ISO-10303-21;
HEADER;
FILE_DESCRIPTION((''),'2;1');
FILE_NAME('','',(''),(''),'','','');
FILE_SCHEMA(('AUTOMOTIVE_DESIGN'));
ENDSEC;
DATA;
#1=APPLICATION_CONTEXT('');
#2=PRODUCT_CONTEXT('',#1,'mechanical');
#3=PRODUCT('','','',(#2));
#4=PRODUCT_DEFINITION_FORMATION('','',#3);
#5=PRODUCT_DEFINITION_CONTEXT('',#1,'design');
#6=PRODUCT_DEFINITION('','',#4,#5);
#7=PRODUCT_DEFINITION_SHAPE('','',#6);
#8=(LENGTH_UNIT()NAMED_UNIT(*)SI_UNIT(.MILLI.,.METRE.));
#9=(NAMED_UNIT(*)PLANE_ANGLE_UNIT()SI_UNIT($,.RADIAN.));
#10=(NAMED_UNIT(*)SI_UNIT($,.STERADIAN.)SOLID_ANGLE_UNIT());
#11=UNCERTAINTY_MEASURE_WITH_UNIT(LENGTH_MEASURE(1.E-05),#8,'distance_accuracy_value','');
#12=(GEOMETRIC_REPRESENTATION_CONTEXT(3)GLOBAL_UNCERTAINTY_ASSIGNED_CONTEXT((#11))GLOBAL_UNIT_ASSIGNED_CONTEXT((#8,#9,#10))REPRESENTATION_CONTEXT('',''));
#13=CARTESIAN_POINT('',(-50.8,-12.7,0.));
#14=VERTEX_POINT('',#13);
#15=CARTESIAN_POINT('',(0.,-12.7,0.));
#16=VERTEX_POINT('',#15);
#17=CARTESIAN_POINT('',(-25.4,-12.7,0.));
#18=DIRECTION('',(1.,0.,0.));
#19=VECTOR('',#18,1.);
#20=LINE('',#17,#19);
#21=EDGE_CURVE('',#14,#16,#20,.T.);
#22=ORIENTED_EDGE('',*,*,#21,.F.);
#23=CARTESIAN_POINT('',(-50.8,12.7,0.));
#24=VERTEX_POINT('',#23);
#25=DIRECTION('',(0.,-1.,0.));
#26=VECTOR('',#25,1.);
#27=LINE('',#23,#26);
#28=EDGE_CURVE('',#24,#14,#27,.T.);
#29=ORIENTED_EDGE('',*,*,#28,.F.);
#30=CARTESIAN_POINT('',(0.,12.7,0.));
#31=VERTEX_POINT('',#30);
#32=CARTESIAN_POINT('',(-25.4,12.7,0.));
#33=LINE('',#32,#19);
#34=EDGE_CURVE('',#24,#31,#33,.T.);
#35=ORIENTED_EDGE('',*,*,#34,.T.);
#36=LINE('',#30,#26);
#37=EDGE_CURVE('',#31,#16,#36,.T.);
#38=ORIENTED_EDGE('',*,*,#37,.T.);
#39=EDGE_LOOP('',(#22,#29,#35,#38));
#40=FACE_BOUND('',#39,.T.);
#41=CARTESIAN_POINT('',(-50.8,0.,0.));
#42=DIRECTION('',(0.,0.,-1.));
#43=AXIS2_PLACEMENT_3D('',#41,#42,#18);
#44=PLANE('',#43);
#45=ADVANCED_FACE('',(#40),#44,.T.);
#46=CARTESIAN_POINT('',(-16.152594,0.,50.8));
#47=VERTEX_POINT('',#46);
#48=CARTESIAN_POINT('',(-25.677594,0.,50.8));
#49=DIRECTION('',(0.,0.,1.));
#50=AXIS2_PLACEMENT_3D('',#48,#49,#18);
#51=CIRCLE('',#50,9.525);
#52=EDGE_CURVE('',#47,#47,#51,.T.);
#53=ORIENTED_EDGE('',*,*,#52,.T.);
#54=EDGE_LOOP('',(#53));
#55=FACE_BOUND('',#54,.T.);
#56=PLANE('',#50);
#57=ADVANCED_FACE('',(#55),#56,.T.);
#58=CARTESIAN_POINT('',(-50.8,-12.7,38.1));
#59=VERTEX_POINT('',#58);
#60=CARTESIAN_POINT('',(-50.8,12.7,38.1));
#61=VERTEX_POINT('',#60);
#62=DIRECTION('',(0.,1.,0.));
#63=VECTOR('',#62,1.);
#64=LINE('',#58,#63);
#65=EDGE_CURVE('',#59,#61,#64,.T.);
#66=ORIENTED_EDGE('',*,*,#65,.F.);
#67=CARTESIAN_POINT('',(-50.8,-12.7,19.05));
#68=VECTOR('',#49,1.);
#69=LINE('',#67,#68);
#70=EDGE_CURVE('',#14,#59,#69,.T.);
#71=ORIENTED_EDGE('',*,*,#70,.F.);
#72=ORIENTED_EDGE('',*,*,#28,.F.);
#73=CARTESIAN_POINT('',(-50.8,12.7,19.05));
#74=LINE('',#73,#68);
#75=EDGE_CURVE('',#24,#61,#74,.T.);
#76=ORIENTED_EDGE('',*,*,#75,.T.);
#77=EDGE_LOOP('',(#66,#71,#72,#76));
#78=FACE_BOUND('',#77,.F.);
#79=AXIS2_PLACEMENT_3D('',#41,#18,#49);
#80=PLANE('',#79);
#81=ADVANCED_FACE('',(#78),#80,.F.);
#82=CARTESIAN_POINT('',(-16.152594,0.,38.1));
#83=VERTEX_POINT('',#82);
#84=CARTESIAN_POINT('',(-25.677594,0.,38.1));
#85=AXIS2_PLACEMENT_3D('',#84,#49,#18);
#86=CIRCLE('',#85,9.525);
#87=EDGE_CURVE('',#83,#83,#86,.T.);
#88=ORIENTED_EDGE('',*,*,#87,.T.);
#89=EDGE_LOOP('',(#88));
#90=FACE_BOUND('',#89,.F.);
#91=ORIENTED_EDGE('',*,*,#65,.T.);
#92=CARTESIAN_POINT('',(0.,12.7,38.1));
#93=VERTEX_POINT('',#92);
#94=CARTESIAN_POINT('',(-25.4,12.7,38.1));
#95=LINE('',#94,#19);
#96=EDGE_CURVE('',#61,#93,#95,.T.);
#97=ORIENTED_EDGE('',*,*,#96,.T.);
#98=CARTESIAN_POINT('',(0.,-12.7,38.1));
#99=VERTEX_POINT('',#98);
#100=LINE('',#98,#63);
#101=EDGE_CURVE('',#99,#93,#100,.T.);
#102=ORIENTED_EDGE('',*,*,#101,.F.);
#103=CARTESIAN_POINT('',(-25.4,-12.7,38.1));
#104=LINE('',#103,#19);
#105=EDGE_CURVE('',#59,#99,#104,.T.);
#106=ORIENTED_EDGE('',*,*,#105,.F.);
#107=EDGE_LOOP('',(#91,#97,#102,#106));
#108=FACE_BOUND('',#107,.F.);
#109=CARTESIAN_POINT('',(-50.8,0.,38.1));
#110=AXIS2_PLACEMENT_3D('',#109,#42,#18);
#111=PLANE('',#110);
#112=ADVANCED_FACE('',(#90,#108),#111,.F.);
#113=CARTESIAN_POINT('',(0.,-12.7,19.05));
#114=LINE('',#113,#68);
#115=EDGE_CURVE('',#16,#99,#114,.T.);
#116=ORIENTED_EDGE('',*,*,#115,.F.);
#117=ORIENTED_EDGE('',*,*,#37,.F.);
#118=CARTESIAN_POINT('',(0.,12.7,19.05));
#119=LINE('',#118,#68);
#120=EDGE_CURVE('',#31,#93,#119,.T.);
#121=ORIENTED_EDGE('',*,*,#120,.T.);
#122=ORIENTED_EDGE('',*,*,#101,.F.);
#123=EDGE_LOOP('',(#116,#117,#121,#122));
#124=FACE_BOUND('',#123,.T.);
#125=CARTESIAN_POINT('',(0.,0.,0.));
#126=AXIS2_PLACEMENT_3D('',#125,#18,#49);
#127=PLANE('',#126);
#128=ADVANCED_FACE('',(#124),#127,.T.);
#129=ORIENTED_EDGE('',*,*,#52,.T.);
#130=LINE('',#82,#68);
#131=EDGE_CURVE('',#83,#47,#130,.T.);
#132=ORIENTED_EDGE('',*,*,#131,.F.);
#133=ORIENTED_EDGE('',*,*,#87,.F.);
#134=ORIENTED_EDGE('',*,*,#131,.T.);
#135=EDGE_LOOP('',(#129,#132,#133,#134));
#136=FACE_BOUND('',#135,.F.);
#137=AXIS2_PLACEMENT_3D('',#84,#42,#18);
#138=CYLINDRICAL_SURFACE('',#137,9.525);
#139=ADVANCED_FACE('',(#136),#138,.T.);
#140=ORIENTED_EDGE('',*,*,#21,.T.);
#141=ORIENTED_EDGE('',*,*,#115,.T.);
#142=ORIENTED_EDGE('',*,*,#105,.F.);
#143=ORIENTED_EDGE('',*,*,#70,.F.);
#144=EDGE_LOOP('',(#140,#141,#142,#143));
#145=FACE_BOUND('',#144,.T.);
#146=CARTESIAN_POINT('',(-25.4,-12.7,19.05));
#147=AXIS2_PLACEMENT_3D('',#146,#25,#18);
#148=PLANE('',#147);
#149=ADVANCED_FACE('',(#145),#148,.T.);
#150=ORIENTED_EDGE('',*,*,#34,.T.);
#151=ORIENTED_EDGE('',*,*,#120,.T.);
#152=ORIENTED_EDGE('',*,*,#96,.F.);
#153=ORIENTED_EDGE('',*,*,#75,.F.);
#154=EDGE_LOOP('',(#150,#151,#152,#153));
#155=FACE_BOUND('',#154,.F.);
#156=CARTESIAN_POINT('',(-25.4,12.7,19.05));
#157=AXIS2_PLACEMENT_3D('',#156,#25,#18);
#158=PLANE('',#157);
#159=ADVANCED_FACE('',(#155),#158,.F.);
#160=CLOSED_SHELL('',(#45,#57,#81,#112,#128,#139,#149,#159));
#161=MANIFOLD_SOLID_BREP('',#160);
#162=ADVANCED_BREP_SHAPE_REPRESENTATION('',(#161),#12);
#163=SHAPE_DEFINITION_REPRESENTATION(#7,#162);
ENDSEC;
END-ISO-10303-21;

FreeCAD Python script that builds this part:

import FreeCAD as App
import Part
import Sketcher

V = App.Vector
Q = App.Units.Quantity


def add_polygon(sketch, points):
    """Adds a closed chain of lines whose ends are joined by coincident constraints."""
    first, n = sketch.GeometryCount, len(points)
    for a, b in zip(points, points[1:] + points[:1]):
        sketch.addGeometry(Part.LineSegment(App.Vector(*a, 0), App.Vector(*b, 0)), False)
    for i in range(n):
        sketch.addConstraint(Sketcher.Constraint("Coincident", first + i, 2, first + (i + 1) % n, 1))

doc = App.newDocument("Part")
params = doc.addObject("Spreadsheet::Sheet", "Params")
for row, (alias, value) in enumerate([
    ("sketch1_width", "2 in"),
    ("sketch1_height", "1.5 in"),
    ("pad1_length", "1 in"),
    ("sketch2_diameter", "0.75 in"),
    ("pad2_length", "0.5 in"),
], start=1):
    params.set(f"A{row}", alias)
    params.set(f"B{row}", "=" + value)
    params.setAlias(f"B{row}", alias)

body = doc.addObject("PartDesign::Body", "Body")

sketch1 = body.newObject("Sketcher::SketchObject", "Sketch")
sketch1.AttachmentSupport = (doc.getObject("XZ_Plane"), [""])
sketch1.MapMode = "FlatFace"
add_polygon(sketch1, [(-51, 38), (-51, 0), (0, 0), (0, 38)])
sketch1.addConstraint([
    Sketcher.Constraint("Vertical", 0),
    Sketcher.Constraint("Horizontal", 1),
    Sketcher.Constraint("Vertical", 2),
    Sketcher.Constraint("Horizontal", 3),
    Sketcher.Constraint("Coincident", 1, 2, -1, 1),
    Sketcher.Constraint("DistanceX", 1, 1, 1, 2, Q("2 in")),
    Sketcher.Constraint("DistanceY", 0, 2, 0, 1, Q("1.5 in")),
])
sketch1.setExpression("Constraints[9]", "Params.sketch1_width")
sketch1.setExpression("Constraints[10]", "Params.sketch1_height")
pad1 = body.newObject("PartDesign::Pad", "Pad")
pad1.Profile = sketch1
pad1.setExpression("Length", "Params.pad1_length")
pad1.Midplane = True

sketch2 = body.newObject("Sketcher::SketchObject", "Sketch001")
sketch2.AttachmentSupport = (doc.getObject("XY_Plane"), [""])
sketch2.MapMode = "FlatFace"
sketch2.AttachmentOffset = App.Placement(V(0, 0, 1.5 * 25.4), App.Rotation())
sketch2.addGeometry(Part.Circle(V(-26, 0, 0), V(0, 0, 1), 10), False)
sketch2.addConstraint([
    Sketcher.Constraint("PointOnObject", 0, 3, -1),
    Sketcher.Constraint("Diameter", 0, Q("0.75 in")),
    Sketcher.Constraint("DistanceX", 0, 3, -1, 1, Q("25.677594 mm")),
])
sketch2.setExpression("Constraints[1]", "Params.sketch2_diameter")
pad2 = body.newObject("PartDesign::Pad", "Pad001")
pad2.Profile = sketch2
pad2.setExpression("Length", "Params.pad2_length")

doc.recompute()
